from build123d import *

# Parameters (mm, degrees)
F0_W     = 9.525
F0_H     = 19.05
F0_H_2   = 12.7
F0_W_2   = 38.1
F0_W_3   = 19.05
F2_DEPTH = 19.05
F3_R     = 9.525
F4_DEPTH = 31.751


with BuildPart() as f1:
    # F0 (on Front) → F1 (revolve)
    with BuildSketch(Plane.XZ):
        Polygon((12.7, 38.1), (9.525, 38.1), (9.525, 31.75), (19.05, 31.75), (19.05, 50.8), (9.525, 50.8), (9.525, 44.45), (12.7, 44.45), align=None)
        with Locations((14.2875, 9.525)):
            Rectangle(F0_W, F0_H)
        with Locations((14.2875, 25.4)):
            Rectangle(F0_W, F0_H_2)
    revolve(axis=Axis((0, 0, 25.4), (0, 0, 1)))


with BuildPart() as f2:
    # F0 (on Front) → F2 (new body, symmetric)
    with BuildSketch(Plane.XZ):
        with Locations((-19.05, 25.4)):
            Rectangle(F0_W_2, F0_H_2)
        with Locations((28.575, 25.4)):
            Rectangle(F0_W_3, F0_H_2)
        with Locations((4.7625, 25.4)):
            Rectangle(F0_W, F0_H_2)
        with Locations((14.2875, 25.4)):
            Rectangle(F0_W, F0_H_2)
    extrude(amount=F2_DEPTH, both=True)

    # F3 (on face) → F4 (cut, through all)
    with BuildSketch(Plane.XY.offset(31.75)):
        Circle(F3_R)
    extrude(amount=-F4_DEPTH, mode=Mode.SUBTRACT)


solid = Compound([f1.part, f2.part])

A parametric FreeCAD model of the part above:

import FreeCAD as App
import Part
import Sketcher
from FreeCAD import Vector
Q = App.Units.Quantity


def add_polygon(sketch, points):
    """Adds a closed chain of lines whose ends are joined by coincident constraints."""
    first, n = sketch.GeometryCount, len(points)
    for a, b in zip(points, points[1:] + points[:1]):
        sketch.addGeometry(Part.LineSegment(App.Vector(*a, 0), App.Vector(*b, 0)), False)
    for i in range(n):
        sketch.addConstraint(Sketcher.Constraint("Coincident", first + i, 2, first + (i + 1) % n, 1))

doc = App.newDocument("Part")
params = doc.addObject("Spreadsheet::Sheet", "Params")
for row, (alias, value) in enumerate([
    ("sketch1_height", "2 in"),
    ("sketch1_height2", "1.5 in"),
    ("sketch1_width", "0.125 in"),
    ("sketch1_width2", "0.375 in"),
    ("revolution_angle", "360 deg"),
    ("sketch2_width", "3 in"),
    ("sketch2_height", "0.5 in"),
    ("pad1_length", "1.5 in"),
    ("sketch3_diameter", "0.75 in"),
], start=1):
    params.set(f"A{row}", alias)
    params.set(f"B{row}", "=" + value)
    params.setAlias(f"B{row}", alias)

body = doc.addObject("PartDesign::Body", "Body")

# Sketch on XZ plane
sketch1 = doc.addObject("Sketcher::SketchObject", "Sketch")
body.addObject(sketch1)
sketch1.AttachmentSupport = (doc.XZ_Plane, [""])
sketch1.MapMode = "FlatFace"
add_polygon(sketch1, [(12.7, 38.1), (9.5, 38.1), (9.5, 0), (19.1, 0), (19.1, 50.8), (9.5, 50.8), (9.5, 44.5), (12.7, 44.5)])  # lines 0-7
sketch1.addConstraint([
    Sketcher.Constraint("Horizontal", 0),
    Sketcher.Constraint("Vertical", 1),
    Sketcher.Constraint("Horizontal", 2),
    Sketcher.Constraint("Vertical", 3),
    Sketcher.Constraint("Horizontal", 4),
    Sketcher.Constraint("Vertical", 5),
    Sketcher.Constraint("Horizontal", 6),
    Sketcher.Constraint("Vertical", 7),
    Sketcher.Constraint("PointOnObject", 1, 2, -1),
    Sketcher.Constraint("Vertical", 1, 2, 4, 2),
    Sketcher.Constraint("Equal", 5, 7),
    Sketcher.Constraint("DistanceY", 3, 1, 3, 2, Q("2 in")),
    Sketcher.Constraint("DistanceY", 1, 2, 1, 1, Q("1.5 in")),
    Sketcher.Constraint("DistanceX", -1, 1, 6, 2, Q("0.5 in")),
    Sketcher.Constraint("DistanceX", 0, 2, 0, 1, Q("0.125 in")),
    Sketcher.Constraint("DistanceX", 2, 1, 2, 2, Q("0.375 in")),
])
sketch1.setExpression("Constraints[19]", "Params.sketch1_height")
sketch1.setExpression("Constraints[20]", "Params.sketch1_height2")
sketch1.setExpression("Constraints[22]", "Params.sketch1_width")
sketch1.setExpression("Constraints[23]", "Params.sketch1_width2")
revolution = doc.addObject("PartDesign::Revolution", "Revolution")
body.addObject(revolution)
revolution.Profile = sketch1
revolution.ReferenceAxis = (sketch1, ["V_Axis"])
revolution.setExpression("Angle", "Params.revolution_angle")
body2 = doc.addObject("PartDesign::Body", "Body001")

# Sketch on XZ plane
sketch2 = doc.addObject("Sketcher::SketchObject", "Sketch001")
body2.addObject(sketch2)
sketch2.AttachmentSupport = (doc.getObject("XZ_Plane001"), [""])
sketch2.MapMode = "FlatFace"
add_polygon(sketch2, [(-38, 32), (-38, 19), (38, 19), (38, 32)])  # lines 0-3
sketch2.addConstraint([
    Sketcher.Constraint("Vertical", 0),
    Sketcher.Constraint("Horizontal", 1),
    Sketcher.Constraint("Vertical", 2),
    Sketcher.Constraint("Horizontal", 3),
    Sketcher.Constraint("DistanceX", 1, 1, 1, 2, Q("3 in")),
    Sketcher.Constraint("DistanceY", 0, 2, 0, 1, Q("0.5 in")),
    Sketcher.Constraint("DistanceX", 0, 2, -1, 1, Q("1.5 in")),
    Sketcher.Constraint("DistanceY", -1, 1, 0, 2, Q("0.75 in")),
])
sketch2.setExpression("Constraints[8]", "Params.sketch2_width")
sketch2.setExpression("Constraints[9]", "Params.sketch2_height")
pad1 = doc.addObject("PartDesign::Pad", "Pad")
body2.addObject(pad1)
pad1.Profile = sketch2
pad1.setExpression("Length", "Params.pad1_length")
pad1.Midplane = True

# Sketch on XY plane
sketch3 = doc.addObject("Sketcher::SketchObject", "Sketch002")
body2.addObject(sketch3)
sketch3.AttachmentSupport = (doc.getObject("XY_Plane001"), [""])
sketch3.MapMode = "FlatFace"
sketch3.AttachmentOffset = App.Placement(Vector(0, 0, 1.25 * 25.4), App.Rotation())
sketch3.addGeometry(Part.Circle(Vector(0, 0, 0), Vector(0, 0, 1), 10), False)
sketch3.addConstraint([
    Sketcher.Constraint("Coincident", 0, 3, -1, 1),
    Sketcher.Constraint("Diameter", 0, Q("0.75 in")),
])
sketch3.setExpression("Constraints[1]", "Params.sketch3_diameter")
pocket1 = doc.addObject("PartDesign::Pocket", "Pocket")
body2.addObject(pocket1)
pocket1.Profile = sketch3
pocket1.Type = "ThroughAll"

doc.recompute()
